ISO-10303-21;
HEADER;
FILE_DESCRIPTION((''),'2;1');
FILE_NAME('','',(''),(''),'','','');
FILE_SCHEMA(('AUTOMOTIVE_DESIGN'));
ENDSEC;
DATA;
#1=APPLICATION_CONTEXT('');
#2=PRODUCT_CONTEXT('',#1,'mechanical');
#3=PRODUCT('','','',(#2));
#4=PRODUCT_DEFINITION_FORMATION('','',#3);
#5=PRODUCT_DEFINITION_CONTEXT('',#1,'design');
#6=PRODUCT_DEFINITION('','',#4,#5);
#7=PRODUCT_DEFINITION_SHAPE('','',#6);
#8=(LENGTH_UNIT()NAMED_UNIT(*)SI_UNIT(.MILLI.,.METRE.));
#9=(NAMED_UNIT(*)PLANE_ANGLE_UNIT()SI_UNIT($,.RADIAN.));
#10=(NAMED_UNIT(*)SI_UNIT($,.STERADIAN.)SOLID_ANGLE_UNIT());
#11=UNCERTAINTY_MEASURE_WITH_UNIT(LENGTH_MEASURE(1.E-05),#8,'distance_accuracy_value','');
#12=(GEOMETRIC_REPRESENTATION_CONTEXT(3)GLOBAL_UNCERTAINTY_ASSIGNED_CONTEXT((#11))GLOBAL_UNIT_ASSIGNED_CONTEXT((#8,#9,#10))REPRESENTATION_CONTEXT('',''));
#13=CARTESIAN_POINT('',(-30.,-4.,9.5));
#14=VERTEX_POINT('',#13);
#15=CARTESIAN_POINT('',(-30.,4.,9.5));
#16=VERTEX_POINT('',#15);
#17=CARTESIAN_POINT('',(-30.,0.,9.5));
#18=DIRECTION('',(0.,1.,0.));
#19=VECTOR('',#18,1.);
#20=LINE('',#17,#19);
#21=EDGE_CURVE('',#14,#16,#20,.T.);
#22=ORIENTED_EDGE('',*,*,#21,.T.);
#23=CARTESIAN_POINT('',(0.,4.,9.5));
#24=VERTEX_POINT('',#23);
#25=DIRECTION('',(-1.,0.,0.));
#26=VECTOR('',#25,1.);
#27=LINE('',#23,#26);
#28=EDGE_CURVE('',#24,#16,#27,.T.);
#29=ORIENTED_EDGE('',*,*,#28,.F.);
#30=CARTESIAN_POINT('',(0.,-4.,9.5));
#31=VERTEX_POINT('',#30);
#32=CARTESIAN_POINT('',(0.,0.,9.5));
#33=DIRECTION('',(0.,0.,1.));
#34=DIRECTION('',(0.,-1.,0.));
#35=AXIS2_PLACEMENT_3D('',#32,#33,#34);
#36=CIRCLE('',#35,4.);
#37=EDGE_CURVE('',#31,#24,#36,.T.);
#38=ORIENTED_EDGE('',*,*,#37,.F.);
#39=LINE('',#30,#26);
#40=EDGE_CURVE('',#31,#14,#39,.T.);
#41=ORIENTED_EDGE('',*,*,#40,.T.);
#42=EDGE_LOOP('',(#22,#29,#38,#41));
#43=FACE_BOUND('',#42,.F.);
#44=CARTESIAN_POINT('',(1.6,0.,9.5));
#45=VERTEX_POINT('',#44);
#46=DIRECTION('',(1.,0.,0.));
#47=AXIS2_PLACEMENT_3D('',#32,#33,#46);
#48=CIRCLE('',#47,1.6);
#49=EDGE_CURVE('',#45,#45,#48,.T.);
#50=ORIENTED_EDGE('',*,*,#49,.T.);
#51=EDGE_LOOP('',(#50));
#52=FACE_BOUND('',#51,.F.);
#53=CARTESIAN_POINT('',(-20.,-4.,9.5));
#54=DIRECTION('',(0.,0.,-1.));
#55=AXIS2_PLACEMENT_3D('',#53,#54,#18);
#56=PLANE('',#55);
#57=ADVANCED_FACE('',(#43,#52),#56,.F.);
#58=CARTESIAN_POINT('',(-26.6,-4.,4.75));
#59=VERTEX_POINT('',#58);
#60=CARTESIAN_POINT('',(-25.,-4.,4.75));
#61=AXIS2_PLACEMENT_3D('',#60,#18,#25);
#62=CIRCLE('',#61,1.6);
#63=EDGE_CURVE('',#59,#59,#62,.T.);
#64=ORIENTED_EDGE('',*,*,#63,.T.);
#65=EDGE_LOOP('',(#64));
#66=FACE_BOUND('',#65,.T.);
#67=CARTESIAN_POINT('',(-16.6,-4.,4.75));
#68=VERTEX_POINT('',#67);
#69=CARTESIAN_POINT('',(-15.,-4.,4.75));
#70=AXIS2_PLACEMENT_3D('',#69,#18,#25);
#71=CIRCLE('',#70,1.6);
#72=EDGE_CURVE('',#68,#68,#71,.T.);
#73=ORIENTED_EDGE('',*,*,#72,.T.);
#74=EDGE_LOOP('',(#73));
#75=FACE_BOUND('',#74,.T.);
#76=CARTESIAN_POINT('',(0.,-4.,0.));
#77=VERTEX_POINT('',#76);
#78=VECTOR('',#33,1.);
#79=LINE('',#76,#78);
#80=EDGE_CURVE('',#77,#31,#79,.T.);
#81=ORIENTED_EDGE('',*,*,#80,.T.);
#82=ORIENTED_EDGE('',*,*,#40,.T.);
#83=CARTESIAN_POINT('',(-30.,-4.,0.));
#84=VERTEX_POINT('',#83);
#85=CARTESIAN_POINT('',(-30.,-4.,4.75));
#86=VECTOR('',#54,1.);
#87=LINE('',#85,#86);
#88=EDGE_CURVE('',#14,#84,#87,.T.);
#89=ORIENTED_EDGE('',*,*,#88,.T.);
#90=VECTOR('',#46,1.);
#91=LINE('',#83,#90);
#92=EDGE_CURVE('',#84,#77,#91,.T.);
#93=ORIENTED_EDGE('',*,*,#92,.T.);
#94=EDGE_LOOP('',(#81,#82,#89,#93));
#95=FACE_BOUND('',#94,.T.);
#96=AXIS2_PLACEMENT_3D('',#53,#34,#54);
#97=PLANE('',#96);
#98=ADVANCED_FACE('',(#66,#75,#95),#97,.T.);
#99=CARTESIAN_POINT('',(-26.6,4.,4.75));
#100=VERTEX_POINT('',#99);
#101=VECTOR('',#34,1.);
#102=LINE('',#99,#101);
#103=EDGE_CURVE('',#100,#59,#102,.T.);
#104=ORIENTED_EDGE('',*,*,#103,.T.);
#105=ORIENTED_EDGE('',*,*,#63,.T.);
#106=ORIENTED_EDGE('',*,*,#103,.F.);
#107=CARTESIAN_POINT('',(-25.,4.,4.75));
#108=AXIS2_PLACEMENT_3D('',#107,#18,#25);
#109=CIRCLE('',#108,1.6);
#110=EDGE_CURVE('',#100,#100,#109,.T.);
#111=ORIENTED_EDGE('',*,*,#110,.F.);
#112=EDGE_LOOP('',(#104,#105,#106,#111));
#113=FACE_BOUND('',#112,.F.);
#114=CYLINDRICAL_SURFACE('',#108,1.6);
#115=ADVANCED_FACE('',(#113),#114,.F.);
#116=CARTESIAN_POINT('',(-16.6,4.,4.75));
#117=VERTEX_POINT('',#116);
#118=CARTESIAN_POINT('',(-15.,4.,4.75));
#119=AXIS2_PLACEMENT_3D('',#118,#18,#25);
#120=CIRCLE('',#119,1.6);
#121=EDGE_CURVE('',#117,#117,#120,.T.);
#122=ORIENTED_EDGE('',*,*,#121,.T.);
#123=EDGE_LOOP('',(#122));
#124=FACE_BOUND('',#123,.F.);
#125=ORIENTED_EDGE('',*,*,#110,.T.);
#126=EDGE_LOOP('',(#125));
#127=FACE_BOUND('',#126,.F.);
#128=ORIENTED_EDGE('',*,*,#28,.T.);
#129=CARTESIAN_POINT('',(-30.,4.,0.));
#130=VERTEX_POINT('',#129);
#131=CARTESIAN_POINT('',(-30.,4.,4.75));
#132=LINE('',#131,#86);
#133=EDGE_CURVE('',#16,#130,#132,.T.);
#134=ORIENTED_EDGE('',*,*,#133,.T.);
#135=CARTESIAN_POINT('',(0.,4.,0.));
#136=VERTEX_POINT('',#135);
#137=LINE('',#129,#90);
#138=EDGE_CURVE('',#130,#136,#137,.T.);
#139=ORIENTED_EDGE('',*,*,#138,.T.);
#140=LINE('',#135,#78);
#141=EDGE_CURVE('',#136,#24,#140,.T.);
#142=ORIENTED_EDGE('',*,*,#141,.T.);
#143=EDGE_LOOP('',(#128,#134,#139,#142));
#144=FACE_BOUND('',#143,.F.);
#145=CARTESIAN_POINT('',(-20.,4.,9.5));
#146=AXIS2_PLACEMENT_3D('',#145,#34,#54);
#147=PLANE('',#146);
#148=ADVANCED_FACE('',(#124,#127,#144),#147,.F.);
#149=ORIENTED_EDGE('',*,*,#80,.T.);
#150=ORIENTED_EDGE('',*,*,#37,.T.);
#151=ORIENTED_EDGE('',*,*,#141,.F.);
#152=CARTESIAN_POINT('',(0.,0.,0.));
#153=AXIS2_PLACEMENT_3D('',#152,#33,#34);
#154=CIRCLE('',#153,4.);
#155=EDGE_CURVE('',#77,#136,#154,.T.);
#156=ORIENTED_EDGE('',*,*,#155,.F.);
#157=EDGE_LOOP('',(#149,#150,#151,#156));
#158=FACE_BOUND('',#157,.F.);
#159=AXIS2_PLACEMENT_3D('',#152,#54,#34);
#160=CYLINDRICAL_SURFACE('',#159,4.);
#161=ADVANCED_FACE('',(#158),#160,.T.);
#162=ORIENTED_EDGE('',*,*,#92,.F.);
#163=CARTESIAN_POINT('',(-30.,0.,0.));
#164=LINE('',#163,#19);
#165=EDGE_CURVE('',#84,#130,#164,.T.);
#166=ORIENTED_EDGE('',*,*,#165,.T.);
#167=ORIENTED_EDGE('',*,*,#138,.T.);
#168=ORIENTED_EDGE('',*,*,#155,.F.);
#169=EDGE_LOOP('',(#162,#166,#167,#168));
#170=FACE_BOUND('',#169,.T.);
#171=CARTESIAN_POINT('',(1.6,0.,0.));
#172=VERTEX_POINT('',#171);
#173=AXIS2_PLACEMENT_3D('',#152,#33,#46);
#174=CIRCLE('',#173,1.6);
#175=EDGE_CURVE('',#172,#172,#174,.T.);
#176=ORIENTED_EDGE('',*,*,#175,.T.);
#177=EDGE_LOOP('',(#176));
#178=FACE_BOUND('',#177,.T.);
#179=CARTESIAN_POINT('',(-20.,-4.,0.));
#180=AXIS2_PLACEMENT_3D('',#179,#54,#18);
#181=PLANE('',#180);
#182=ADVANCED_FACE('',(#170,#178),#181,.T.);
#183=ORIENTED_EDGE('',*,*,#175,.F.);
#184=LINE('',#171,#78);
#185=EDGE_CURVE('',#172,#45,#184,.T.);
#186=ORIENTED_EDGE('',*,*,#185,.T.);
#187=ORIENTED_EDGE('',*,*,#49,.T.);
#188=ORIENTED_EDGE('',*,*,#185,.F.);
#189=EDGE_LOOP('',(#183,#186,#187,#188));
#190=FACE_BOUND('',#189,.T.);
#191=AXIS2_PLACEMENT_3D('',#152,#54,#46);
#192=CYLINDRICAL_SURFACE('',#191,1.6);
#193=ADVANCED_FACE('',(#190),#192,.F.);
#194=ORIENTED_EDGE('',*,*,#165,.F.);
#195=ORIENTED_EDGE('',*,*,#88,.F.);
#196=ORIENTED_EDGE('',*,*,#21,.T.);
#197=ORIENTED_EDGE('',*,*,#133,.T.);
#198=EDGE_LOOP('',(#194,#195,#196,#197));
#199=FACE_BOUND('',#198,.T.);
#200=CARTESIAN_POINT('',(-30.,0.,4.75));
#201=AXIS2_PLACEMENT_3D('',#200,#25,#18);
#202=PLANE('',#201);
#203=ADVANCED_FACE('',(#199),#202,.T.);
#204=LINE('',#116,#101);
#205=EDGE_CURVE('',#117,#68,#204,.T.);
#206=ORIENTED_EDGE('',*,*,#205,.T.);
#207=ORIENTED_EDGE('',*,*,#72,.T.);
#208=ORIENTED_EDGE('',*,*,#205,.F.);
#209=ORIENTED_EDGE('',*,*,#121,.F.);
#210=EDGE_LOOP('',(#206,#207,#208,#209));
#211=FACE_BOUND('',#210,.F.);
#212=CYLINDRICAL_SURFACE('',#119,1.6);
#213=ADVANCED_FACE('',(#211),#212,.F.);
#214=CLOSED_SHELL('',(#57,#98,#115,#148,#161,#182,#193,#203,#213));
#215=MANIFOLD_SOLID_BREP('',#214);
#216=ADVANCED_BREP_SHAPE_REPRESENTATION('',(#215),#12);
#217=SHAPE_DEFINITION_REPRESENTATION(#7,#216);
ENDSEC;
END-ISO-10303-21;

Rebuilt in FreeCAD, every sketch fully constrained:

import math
import FreeCAD as App
import Part
import Sketcher
from FreeCAD import Vector
Q = App.Units.Quantity


def add_polygon(sketch, points):
    """Adds a closed chain of lines whose ends are joined by coincident constraints."""
    first, n = sketch.GeometryCount, len(points)
    for a, b in zip(points, points[1:] + points[:1]):
        sketch.addGeometry(Part.LineSegment(App.Vector(*a, 0), App.Vector(*b, 0)), False)
    for i in range(n):
        sketch.addConstraint(Sketcher.Constraint("Coincident", first + i, 2, first + (i + 1) % n, 1))

doc = App.newDocument("Part")
params = doc.addObject("Spreadsheet::Sheet", "Params")
for row, (alias, value) in enumerate([
    ("sketch1_radius", "4 mm"),
    ("sketch1_diameter", "3.2 mm"),
    ("sketch1_width", "20 mm"),
    ("pad1_length", "9.5 mm"),
    ("sketch2_diameter", "3.2 mm"),
    ("sketch3_width", "8 mm"),
    ("sketch3_height", "9.5 mm"),
    ("pad2_length", "10 mm"),
    ("sketch4_diameter", "3.2 mm"),
], start=1):
    params.set(f"A{row}", alias)
    params.set(f"B{row}", "=" + value)
    params.setAlias(f"B{row}", alias)

body = doc.addObject("PartDesign::Body", "Body")

# Sketch on XY plane
sketch1 = body.newObject("Sketcher::SketchObject", "Sketch")
sketch1.AttachmentSupport = (doc.getObject("XY_Plane"), [""])
sketch1.MapMode = "FlatFace"
sketch1.addGeometry(Part.ArcOfCircle(Part.Circle(Vector(0, 0, 0), Vector(0, 0, 1), 4), math.radians(-90), math.radians(90)), False)
sketch1.addGeometry(Part.LineSegment(Vector(0, 4, 0), Vector(-20, 4, 0)), False)
sketch1.addGeometry(Part.LineSegment(Vector(-20, 4, 0), Vector(-20, -4, 0)), False)
sketch1.addGeometry(Part.LineSegment(Vector(-20, -4, 0), Vector(0, -4, 0)), False)
sketch1.addGeometry(Part.Circle(Vector(0, 0, 0), Vector(0, 0, 1), 1.6), False)
sketch1.addConstraint(Sketcher.Constraint("Tangent", 0, 2, 1, 1))
sketch1.addConstraint(Sketcher.Constraint("Coincident", 1, 2, 2, 1))
sketch1.addConstraint(Sketcher.Constraint("Coincident", 2, 2, 3, 1))
sketch1.addConstraint(Sketcher.Constraint("Tangent", 3, 2, 0, 1))
sketch1.addConstraint(Sketcher.Constraint("Horizontal", 1))
sketch1.addConstraint(Sketcher.Constraint("Vertical", 2))
sketch1.addConstraint(Sketcher.Constraint("Horizontal", 3))
sketch1.addConstraint(Sketcher.Constraint("Coincident", 0, 3, -1, 1))
sketch1.addConstraint(Sketcher.Constraint("Coincident", 4, 3, -1, 1))
sketch1.addConstraint(Sketcher.Constraint("Radius", 0, Q("4 mm")))
sketch1.addConstraint(Sketcher.Constraint("Diameter", 4, Q("3.2 mm")))
sketch1.addConstraint(Sketcher.Constraint("DistanceX", 1, 2, 1, 1, Q("20 mm")))
sketch1.setExpression("Constraints[9]", "Params.sketch1_radius")
sketch1.setExpression("Constraints[10]", "Params.sketch1_diameter")
sketch1.setExpression("Constraints[11]", "Params.sketch1_width")
pad1 = body.newObject("PartDesign::Pad", "Pad")
pad1.Profile = sketch1
pad1.setExpression("Length", "Params.pad1_length")

# Sketch on XZ plane
sketch2 = body.newObject("Sketcher::SketchObject", "Sketch001")
sketch2.AttachmentSupport = (doc.getObject("XZ_Plane"), [""])
sketch2.MapMode = "FlatFace"
sketch2.AttachmentOffset = App.Placement(Vector(0, 0, -4), App.Rotation())
sketch2.addGeometry(Part.Circle(Vector(-15, 4.8, 0), Vector(0, 0, 1), 1.6), False)
sketch2.addConstraint(Sketcher.Constraint("Diameter", 0, Q("3.2 mm")))
sketch2.addConstraint(Sketcher.Constraint("DistanceX", 0, 3, -1, 1, Q("15 mm")))
sketch2.addConstraint(Sketcher.Constraint("DistanceY", -1, 1, 0, 3, Q("4.75 mm")))
sketch2.setExpression("Constraints[0]", "Params.sketch2_diameter")
pocket1 = body.newObject("PartDesign::Pocket", "Pocket")
pocket1.Profile = sketch2
pocket1.Type = "ThroughAll"
pocket1.Reversed = True

# Sketch on YZ plane
sketch3 = body.newObject("Sketcher::SketchObject", "Sketch002")
sketch3.AttachmentSupport = (doc.getObject("YZ_Plane"), [""])
sketch3.MapMode = "FlatFace"
sketch3.AttachmentOffset = App.Placement(Vector(0, 0, -20), App.Rotation())
add_polygon(sketch3, [(-4, 0), (-4, 10), (4, 10), (4, 0)])  # lines 0-3
sketch3.addConstraint(Sketcher.Constraint("Vertical", 0))
sketch3.addConstraint(Sketcher.Constraint("Horizontal", 1))
sketch3.addConstraint(Sketcher.Constraint("Vertical", 2))
sketch3.addConstraint(Sketcher.Constraint("Horizontal", 3))
sketch3.addConstraint(Sketcher.Constraint("Symmetric", 2, 2, 3, 2, -1, 1))
sketch3.addConstraint(Sketcher.Constraint("DistanceX", 1, 1, 1, 2, Q("8 mm")))
sketch3.addConstraint(Sketcher.Constraint("DistanceY", 0, 1, 0, 2, Q("9.5 mm")))
sketch3.setExpression("Constraints[9]", "Params.sketch3_width")
sketch3.setExpression("Constraints[10]", "Params.sketch3_height")
pad2 = body.newObject("PartDesign::Pad", "Pad001")
pad2.Profile = sketch3
pad2.setExpression("Length", "Params.pad2_length")
pad2.Reversed = True

# Sketch on XZ plane
sketch4 = body.newObject("Sketcher::SketchObject", "Sketch003")
sketch4.AttachmentSupport = (doc.getObject("XZ_Plane"), [""])
sketch4.MapMode = "FlatFace"
sketch4.AttachmentOffset = App.Placement(Vector(0, 0, -4), App.Rotation())
sketch4.addGeometry(Part.Circle(Vector(-25, 4.8, 0), Vector(0, 0, 1), 1.6), False)
sketch4.addConstraint(Sketcher.Constraint("Diameter", 0, Q("3.2 mm")))
sketch4.addConstraint(Sketcher.Constraint("DistanceX", 0, 3, -1, 1, Q("25 mm")))
sketch4.addConstraint(Sketcher.Constraint("DistanceY", -1, 1, 0, 3, Q("4.75 mm")))
sketch4.setExpression("Constraints[0]", "Params.sketch4_diameter")
pocket2 = body.newObject("PartDesign::Pocket", "Pocket001")
pocket2.Profile = sketch4
pocket2.Type = "ThroughAll"
pocket2.Reversed = True

doc.recompute()
